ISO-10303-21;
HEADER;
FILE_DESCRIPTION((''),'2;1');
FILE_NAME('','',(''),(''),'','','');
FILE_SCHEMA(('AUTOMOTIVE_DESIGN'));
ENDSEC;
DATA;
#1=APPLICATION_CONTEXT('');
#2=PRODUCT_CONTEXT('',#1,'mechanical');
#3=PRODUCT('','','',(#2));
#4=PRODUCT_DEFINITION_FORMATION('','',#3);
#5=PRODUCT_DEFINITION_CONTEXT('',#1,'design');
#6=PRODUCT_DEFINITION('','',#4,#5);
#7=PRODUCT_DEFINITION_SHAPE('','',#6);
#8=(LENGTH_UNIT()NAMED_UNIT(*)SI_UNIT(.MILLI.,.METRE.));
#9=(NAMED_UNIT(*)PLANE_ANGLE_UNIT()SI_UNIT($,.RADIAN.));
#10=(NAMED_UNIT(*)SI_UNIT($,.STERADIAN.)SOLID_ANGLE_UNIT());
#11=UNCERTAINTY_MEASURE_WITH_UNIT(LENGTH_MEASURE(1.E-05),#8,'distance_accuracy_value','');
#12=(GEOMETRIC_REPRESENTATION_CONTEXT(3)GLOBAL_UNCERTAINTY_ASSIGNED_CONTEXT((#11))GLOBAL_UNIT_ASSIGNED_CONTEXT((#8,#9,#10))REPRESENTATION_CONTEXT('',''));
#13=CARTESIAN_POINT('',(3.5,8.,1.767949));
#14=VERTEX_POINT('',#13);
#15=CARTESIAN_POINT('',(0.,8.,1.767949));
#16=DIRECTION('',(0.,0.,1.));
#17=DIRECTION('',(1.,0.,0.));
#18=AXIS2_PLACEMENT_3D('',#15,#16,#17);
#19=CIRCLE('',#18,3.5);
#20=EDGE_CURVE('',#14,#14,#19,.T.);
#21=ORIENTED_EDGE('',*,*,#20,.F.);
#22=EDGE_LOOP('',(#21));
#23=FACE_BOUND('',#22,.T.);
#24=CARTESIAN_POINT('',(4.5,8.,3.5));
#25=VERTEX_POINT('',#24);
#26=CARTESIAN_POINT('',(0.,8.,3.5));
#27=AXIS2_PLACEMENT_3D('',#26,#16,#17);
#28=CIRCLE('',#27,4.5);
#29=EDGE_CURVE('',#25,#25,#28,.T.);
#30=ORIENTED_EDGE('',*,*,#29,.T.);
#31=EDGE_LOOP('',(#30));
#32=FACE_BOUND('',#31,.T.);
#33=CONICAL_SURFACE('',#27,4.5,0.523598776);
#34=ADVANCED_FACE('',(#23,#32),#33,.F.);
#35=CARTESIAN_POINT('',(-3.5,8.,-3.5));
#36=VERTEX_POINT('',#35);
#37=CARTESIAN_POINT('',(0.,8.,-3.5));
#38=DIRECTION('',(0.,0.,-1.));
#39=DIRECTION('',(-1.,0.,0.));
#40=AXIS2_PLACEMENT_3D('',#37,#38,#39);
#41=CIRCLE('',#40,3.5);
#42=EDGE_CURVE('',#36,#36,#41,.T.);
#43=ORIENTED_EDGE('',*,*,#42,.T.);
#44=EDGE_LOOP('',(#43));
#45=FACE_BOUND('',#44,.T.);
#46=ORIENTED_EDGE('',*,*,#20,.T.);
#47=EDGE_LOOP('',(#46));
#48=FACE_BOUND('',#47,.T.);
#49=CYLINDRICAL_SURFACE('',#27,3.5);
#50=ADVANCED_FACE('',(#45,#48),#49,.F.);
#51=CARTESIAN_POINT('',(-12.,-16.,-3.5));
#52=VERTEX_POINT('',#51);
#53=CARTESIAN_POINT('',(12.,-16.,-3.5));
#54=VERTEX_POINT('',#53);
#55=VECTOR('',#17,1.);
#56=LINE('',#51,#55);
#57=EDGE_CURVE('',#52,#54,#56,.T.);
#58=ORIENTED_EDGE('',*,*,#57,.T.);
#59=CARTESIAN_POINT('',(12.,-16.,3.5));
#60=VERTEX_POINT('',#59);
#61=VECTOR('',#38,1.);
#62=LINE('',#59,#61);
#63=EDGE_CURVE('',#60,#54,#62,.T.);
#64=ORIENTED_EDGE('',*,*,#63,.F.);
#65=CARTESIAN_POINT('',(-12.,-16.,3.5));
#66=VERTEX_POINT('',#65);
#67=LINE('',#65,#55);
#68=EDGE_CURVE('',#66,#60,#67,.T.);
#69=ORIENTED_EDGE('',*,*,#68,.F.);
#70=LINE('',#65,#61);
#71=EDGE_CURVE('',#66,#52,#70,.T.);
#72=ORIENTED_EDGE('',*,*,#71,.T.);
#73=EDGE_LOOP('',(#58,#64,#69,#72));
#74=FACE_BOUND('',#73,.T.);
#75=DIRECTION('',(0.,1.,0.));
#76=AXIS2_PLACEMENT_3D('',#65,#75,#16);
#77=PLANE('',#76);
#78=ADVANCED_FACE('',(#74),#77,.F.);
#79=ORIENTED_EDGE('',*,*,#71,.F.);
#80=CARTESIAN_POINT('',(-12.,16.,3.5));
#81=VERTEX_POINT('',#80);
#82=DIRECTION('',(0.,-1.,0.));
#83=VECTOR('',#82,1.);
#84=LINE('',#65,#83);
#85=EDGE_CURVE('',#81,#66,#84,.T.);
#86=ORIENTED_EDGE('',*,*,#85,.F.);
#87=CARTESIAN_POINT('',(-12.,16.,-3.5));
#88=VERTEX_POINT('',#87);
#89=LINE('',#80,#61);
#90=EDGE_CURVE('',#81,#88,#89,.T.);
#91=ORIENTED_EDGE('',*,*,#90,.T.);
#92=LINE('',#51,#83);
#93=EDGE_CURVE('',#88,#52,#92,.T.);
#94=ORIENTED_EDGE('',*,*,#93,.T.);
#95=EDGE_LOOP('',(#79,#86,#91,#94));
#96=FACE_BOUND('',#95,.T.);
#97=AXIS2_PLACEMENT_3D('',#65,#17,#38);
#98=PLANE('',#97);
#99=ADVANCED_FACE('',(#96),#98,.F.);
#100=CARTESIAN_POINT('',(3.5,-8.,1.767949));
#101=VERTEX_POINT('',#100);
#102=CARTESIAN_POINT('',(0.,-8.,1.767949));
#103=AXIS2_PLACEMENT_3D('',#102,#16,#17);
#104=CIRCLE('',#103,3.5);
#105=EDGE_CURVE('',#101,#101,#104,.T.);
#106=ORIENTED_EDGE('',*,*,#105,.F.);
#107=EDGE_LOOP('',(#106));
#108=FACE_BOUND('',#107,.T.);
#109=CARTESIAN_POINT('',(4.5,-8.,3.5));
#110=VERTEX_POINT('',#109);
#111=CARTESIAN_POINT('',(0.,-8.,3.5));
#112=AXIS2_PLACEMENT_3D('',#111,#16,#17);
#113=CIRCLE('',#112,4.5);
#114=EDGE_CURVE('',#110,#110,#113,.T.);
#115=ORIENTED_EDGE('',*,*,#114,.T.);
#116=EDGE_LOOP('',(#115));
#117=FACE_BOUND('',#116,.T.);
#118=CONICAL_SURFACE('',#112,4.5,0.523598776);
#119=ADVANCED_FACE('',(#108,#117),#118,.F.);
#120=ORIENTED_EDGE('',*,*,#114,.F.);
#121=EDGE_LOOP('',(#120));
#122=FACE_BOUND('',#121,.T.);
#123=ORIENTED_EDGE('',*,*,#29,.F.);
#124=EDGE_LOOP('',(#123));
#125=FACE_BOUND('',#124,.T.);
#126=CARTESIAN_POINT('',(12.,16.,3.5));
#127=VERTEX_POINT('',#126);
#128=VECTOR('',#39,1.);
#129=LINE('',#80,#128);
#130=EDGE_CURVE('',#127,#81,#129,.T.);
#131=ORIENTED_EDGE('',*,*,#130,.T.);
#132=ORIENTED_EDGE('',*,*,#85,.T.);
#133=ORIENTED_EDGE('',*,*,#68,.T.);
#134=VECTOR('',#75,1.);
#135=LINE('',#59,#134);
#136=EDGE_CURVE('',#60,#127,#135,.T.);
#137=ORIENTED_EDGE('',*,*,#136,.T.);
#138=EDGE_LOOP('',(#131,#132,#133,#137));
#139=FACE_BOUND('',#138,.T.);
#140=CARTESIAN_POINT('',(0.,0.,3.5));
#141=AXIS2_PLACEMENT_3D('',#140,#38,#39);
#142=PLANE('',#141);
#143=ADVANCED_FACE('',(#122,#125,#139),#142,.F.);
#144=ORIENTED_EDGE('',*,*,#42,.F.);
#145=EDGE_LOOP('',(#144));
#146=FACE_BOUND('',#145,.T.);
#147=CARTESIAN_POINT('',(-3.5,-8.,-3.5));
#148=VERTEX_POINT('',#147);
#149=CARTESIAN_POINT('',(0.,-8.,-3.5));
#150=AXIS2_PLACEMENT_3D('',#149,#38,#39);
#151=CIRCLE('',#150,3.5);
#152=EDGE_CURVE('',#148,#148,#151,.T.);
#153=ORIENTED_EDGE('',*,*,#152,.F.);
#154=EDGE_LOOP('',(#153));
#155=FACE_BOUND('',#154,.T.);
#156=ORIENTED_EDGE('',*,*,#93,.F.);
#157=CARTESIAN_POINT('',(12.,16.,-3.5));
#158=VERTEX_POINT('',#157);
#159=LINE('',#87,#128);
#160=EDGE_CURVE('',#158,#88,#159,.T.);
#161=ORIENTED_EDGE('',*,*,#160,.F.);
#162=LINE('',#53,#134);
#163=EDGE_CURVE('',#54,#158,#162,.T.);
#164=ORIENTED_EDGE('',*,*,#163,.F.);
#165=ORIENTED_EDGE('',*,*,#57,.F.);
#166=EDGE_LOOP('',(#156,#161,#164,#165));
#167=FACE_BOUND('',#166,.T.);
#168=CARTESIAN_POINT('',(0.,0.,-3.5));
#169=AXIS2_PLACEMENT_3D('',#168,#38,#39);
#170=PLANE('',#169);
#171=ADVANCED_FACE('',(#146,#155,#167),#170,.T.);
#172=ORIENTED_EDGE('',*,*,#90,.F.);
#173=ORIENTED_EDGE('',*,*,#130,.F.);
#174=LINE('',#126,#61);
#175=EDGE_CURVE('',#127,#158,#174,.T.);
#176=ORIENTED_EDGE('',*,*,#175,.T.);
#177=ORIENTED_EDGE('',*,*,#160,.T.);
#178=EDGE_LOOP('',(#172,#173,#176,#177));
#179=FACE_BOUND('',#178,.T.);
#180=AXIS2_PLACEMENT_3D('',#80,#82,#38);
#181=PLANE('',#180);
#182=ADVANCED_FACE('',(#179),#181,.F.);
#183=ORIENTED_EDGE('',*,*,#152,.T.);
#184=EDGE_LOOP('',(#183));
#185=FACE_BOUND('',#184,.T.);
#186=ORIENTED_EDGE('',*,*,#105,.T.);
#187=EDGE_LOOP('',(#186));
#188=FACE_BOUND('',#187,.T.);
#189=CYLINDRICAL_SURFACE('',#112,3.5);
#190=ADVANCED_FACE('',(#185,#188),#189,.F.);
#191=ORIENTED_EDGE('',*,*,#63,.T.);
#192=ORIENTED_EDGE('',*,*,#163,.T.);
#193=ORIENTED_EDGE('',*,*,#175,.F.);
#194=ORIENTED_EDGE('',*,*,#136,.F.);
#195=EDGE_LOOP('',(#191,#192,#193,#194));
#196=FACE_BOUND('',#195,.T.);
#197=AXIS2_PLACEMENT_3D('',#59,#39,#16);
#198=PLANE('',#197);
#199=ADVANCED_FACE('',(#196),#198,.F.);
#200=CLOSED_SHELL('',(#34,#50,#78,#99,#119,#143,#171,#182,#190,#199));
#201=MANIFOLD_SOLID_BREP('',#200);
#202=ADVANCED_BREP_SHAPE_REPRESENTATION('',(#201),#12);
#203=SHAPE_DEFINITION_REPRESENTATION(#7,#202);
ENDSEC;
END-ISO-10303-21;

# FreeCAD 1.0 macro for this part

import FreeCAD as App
import Part
import Sketcher

V = App.Vector
Q = App.Units.Quantity

doc = App.newDocument("Part")
body = doc.addObject("PartDesign::Body", "Body")

sketch1 = body.newObject("Sketcher::SketchObject", "Sketch")
sketch1.AttachmentSupport = (doc.getObject("XY_Plane"), [""])
sketch1.MapMode = "FlatFace"
sketch1.addGeometry(Part.LineSegment(V(-12, 16, 0), V(-12, -16, 0)), False)
sketch1.addGeometry(Part.LineSegment(V(-12, -16, 0), V(12, -16, 0)), False)
sketch1.addGeometry(Part.LineSegment(V(12, -16, 0), V(12, 16, 0)), False)
sketch1.addGeometry(Part.LineSegment(V(12, 16, 0), V(-12, 16, 0)), False)
sketch1.addConstraint(Sketcher.Constraint("Coincident", 0, 2, 1, 1))
sketch1.addConstraint(Sketcher.Constraint("Coincident", 1, 2, 2, 1))
sketch1.addConstraint(Sketcher.Constraint("Coincident", 2, 2, 3, 1))
sketch1.addConstraint(Sketcher.Constraint("Coincident", 3, 2, 0, 1))
sketch1.addConstraint(Sketcher.Constraint("Vertical", 0))
sketch1.addConstraint(Sketcher.Constraint("Horizontal", 1))
sketch1.addConstraint(Sketcher.Constraint("Vertical", 2))
sketch1.addConstraint(Sketcher.Constraint("Horizontal", 3))
sketch1.addConstraint(Sketcher.Constraint("Symmetric", 0, 2, 2, 2, -1, 1))
sketch1.addConstraint(Sketcher.Constraint("DistanceX", 1, 1, 1, 2, Q("24 mm")))
sketch1.addConstraint(Sketcher.Constraint("DistanceY", 0, 2, 0, 1, Q("32 mm")))
pad1 = body.newObject("PartDesign::Pad", "Pad")
pad1.Profile = sketch1
pad1.Length = 7
pad1.Midplane = True

sketch2 = body.newObject("Sketcher::SketchObject", "Sketch001")
sketch2.AttachmentSupport = (doc.getObject("XY_Plane"), [""])
sketch2.MapMode = "FlatFace"
sketch2.AttachmentOffset = App.Placement(V(0, 0, 3.5), App.Rotation())
sketch2.addGeometry(Part.Circle(V(0, 8, 0), V(0, 0, 1), 3.5), False)
sketch2.addGeometry(Part.Circle(V(0, -8, 0), V(0, 0, 1), 3.5), False)
sketch2.addConstraint(Sketcher.Constraint("Equal", 0, 1))
sketch2.addConstraint(Sketcher.Constraint("Symmetric", 0, 3, 1, 3, -1, 1))
sketch2.addConstraint(Sketcher.Constraint("PointOnObject", 0, 3, -2))
sketch2.addConstraint(Sketcher.Constraint("Diameter", 0, Q("7 mm")))
sketch2.addConstraint(Sketcher.Constraint("DistanceY", -1, 1, 0, 3, Q("8 mm")))
doc.recompute()
hole = body.newObject("PartDesign::Hole", "Hole")
hole.Profile = sketch2
hole.ThreadType = "None"
hole.Diameter = 7
hole.DepthType = "Dimension"
hole.Depth = 12
hole.DrillPoint = "Flat"
hole.HoleCutType = "Countersink"
hole.HoleCutDiameter = 9
hole.HoleCutCountersinkAngle = 60

doc.recompute()
